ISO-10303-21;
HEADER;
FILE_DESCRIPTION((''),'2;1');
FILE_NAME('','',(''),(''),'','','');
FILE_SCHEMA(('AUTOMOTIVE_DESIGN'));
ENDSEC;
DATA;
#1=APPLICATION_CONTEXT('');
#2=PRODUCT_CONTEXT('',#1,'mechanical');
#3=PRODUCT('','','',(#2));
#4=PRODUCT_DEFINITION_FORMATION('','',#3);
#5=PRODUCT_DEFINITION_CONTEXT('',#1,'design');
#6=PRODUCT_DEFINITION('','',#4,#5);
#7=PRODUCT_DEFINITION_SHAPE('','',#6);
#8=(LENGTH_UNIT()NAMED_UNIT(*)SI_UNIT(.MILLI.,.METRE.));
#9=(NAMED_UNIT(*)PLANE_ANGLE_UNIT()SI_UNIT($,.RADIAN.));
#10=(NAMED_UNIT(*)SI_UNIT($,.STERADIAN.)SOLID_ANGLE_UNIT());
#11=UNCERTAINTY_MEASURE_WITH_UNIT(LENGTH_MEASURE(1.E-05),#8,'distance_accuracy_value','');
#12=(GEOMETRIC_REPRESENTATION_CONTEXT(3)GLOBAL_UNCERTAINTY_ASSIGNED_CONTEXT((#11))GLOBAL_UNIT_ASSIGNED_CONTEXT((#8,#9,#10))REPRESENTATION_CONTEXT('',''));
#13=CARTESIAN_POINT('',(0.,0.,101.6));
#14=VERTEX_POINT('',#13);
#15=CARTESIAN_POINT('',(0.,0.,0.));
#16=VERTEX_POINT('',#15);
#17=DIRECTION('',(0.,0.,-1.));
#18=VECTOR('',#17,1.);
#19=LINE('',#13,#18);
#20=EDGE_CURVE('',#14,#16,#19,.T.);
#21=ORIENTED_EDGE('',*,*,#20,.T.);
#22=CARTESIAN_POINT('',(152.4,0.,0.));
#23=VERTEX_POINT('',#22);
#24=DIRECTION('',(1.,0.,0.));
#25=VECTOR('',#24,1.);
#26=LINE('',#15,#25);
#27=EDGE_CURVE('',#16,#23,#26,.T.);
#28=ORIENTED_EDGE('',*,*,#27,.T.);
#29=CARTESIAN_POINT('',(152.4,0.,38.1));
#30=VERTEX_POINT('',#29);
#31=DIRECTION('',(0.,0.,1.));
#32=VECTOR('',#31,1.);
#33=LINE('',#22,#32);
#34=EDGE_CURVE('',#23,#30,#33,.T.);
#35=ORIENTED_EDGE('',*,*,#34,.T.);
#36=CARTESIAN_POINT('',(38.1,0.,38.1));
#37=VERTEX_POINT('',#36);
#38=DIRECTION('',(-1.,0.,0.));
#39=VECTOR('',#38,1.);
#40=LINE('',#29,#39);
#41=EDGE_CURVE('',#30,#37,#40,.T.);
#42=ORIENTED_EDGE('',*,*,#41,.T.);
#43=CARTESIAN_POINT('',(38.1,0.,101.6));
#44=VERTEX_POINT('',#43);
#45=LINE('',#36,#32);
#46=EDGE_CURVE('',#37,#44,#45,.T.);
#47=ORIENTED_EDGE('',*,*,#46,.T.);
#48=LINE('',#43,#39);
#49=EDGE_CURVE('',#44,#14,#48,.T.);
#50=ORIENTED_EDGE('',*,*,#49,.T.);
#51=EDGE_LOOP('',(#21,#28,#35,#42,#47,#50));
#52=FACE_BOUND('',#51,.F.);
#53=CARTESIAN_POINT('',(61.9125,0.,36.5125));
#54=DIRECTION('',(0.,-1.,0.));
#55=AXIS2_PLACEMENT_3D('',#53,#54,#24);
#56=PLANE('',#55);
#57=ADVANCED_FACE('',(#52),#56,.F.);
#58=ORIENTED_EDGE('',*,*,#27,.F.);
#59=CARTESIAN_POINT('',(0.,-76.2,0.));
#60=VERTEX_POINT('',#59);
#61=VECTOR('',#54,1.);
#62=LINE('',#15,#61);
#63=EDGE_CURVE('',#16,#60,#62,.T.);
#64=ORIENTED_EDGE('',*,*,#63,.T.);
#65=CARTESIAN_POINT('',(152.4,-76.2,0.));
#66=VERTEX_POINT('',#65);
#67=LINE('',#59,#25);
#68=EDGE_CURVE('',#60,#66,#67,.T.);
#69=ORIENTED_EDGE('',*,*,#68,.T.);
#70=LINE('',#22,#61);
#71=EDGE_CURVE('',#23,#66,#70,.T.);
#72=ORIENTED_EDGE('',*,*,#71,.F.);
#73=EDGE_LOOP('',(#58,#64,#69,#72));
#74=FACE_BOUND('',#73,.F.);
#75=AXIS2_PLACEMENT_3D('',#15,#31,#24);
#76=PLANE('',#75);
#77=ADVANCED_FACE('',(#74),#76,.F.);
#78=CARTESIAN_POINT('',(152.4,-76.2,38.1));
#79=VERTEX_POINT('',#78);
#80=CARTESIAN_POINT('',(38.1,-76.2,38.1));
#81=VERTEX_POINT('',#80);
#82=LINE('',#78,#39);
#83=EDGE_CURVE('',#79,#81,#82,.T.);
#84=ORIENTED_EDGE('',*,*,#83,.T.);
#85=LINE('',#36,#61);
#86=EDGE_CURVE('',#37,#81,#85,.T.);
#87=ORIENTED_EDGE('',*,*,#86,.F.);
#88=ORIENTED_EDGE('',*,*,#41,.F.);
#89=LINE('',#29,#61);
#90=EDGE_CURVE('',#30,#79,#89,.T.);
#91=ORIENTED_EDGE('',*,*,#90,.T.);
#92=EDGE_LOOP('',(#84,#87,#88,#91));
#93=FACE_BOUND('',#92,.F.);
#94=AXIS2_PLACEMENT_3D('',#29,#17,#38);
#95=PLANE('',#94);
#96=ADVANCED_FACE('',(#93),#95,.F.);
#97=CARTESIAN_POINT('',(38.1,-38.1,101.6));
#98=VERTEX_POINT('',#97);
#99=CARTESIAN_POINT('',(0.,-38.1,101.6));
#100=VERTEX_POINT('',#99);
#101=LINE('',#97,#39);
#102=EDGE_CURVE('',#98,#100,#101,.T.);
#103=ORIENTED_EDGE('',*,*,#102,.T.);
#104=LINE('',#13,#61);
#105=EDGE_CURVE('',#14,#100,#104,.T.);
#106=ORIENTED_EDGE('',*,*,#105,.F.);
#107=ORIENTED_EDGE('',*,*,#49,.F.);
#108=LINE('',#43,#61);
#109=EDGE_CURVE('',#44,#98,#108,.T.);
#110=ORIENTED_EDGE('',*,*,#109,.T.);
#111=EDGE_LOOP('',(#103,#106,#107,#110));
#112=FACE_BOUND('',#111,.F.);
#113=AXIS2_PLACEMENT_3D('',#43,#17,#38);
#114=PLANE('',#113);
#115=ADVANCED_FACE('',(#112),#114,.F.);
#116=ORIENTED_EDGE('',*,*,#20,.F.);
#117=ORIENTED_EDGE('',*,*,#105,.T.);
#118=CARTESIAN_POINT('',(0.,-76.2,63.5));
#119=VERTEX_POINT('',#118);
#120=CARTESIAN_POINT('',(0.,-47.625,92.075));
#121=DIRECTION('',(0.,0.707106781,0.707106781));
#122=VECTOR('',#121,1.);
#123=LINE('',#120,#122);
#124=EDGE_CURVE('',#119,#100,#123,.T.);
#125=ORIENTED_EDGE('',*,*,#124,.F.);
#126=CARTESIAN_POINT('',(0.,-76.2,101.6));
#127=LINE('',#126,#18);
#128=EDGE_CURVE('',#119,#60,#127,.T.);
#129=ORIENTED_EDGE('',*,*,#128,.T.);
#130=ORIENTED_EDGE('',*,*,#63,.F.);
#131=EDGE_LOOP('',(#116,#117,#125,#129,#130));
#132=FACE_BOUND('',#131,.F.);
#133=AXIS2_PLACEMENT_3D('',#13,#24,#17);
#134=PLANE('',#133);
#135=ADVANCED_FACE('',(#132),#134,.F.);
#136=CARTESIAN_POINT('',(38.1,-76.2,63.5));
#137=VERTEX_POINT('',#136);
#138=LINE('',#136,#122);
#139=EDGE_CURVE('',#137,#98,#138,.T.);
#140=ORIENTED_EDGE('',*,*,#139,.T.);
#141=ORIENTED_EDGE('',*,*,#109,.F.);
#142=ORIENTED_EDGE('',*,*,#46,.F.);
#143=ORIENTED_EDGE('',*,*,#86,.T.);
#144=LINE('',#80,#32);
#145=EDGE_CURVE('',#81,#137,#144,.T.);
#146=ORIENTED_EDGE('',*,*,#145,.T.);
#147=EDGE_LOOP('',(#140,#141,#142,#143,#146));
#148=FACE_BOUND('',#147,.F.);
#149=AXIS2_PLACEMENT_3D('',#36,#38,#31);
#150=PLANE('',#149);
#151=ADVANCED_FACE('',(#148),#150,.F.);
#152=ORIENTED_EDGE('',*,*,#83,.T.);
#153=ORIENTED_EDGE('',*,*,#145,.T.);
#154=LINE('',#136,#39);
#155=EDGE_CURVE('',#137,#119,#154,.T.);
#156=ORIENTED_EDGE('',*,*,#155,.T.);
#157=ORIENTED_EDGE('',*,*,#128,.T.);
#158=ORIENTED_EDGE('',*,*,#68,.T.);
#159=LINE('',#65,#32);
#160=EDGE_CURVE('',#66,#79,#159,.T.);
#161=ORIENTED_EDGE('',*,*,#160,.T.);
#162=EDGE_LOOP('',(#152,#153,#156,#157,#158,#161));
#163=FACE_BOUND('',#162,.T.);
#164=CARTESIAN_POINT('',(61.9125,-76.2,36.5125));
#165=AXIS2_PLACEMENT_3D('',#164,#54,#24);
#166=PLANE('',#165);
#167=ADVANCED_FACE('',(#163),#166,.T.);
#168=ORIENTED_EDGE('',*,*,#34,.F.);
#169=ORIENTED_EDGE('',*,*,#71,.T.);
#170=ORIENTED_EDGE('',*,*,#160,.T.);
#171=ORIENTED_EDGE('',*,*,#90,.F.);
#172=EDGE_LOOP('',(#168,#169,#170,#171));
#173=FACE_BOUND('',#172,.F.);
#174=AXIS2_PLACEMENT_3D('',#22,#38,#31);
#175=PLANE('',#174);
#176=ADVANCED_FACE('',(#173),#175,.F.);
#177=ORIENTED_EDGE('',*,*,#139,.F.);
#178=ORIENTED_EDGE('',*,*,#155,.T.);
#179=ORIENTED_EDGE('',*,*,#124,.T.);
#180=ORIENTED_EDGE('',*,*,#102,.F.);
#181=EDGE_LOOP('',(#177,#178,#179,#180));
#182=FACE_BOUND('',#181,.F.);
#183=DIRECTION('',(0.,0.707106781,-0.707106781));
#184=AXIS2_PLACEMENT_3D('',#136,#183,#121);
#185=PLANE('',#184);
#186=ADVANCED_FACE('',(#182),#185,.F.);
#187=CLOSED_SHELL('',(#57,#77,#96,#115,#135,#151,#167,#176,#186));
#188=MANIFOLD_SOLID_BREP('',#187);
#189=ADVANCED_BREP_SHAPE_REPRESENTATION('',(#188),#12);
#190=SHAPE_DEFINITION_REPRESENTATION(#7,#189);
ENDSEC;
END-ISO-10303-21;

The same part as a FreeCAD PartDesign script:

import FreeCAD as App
import Part
import Sketcher

V = App.Vector
Q = App.Units.Quantity

doc = App.newDocument("Part")
body = doc.addObject("PartDesign::Body", "Body")

# Sketch on XZ plane
sketch1 = body.newObject("Sketcher::SketchObject", "Sketch")
sketch1.AttachmentSupport = (doc.getObject("XZ_Plane"), [""])
sketch1.MapMode = "FlatFace"
sketch1.addGeometry(Part.LineSegment(V(0, 102, 0), V(0, 0, 0)), False)
sketch1.addGeometry(Part.LineSegment(V(0, 0, 0), V(152, 0, 0)), False)
sketch1.addGeometry(Part.LineSegment(V(152, 0, 0), V(152, 38, 0)), False)
sketch1.addGeometry(Part.LineSegment(V(152, 38, 0), V(38, 38, 0)), False)
sketch1.addGeometry(Part.LineSegment(V(38, 38, 0), V(38, 102, 0)), False)
sketch1.addGeometry(Part.LineSegment(V(38, 102, 0), V(0, 102, 0)), False)
sketch1.addConstraint(Sketcher.Constraint("Coincident", 0, 2, 1, 1))
sketch1.addConstraint(Sketcher.Constraint("Coincident", 1, 2, 2, 1))
sketch1.addConstraint(Sketcher.Constraint("Coincident", 2, 2, 3, 1))
sketch1.addConstraint(Sketcher.Constraint("Coincident", 3, 2, 4, 1))
sketch1.addConstraint(Sketcher.Constraint("Coincident", 4, 2, 5, 1))
sketch1.addConstraint(Sketcher.Constraint("Coincident", 5, 2, 0, 1))
sketch1.addConstraint(Sketcher.Constraint("Vertical", 0))
sketch1.addConstraint(Sketcher.Constraint("Horizontal", 1))
sketch1.addConstraint(Sketcher.Constraint("Vertical", 2))
sketch1.addConstraint(Sketcher.Constraint("Horizontal", 3))
sketch1.addConstraint(Sketcher.Constraint("Vertical", 4))
sketch1.addConstraint(Sketcher.Constraint("Horizontal", 5))
sketch1.addConstraint(Sketcher.Constraint("Coincident", 0, 2, -1, 1))
sketch1.addConstraint(Sketcher.Constraint("Equal", 5, 2))
sketch1.addConstraint(Sketcher.Constraint("DistanceX", 1, 1, 1, 2, Q("6 in")))
sketch1.addConstraint(Sketcher.Constraint("DistanceY", 0, 2, 0, 1, Q("4 in")))
sketch1.addConstraint(Sketcher.Constraint("DistanceX", 3, 2, 3, 1, Q("4.5 in")))
pad1 = body.newObject("PartDesign::Pad", "Pad")
pad1.Profile = sketch1
pad1.Length = Q("3 in")

# Sketch on YZ plane
sketch2 = body.newObject("Sketcher::SketchObject", "Sketch001")
sketch2.AttachmentSupport = (doc.getObject("YZ_Plane"), [""])
sketch2.MapMode = "FlatFace"
sketch2.AttachmentOffset = App.Placement(V(0, 0, 1.5 * 25.4), App.Rotation())
sketch2.addGeometry(Part.LineSegment(V(-76, 64, 0), V(-38, 102, 0)), False)
sketch2.addGeometry(Part.LineSegment(V(-38, 102, 0), V(-76, 102, 0)), False)
sketch2.addGeometry(Part.LineSegment(V(-76, 102, 0), V(-76, 64, 0)), False)
sketch2.addConstraint(Sketcher.Constraint("Coincident", 0, 2, 1, 1))
sketch2.addConstraint(Sketcher.Constraint("Coincident", 1, 2, 2, 1))
sketch2.addConstraint(Sketcher.Constraint("Coincident", 2, 2, 0, 1))
sketch2.addConstraint(Sketcher.Constraint("Horizontal", 1))
sketch2.addConstraint(Sketcher.Constraint("Vertical", 2))
sketch2.addConstraint(Sketcher.Constraint("Equal", 1, 2))
sketch2.addConstraint(Sketcher.Constraint("DistanceX", 1, 2, 1, 1, Q("1.5 in")))
sketch2.addConstraint(Sketcher.Constraint("DistanceY", -1, 1, 0, 2, Q("4 in")))
sketch2.addConstraint(Sketcher.Constraint("DistanceX", 1, 2, -1, 1, Q("3 in")))
pocket1 = body.newObject("PartDesign::Pocket", "Pocket")
pocket1.Profile = sketch2
pocket1.Type = "ThroughAll"

doc.recompute()
